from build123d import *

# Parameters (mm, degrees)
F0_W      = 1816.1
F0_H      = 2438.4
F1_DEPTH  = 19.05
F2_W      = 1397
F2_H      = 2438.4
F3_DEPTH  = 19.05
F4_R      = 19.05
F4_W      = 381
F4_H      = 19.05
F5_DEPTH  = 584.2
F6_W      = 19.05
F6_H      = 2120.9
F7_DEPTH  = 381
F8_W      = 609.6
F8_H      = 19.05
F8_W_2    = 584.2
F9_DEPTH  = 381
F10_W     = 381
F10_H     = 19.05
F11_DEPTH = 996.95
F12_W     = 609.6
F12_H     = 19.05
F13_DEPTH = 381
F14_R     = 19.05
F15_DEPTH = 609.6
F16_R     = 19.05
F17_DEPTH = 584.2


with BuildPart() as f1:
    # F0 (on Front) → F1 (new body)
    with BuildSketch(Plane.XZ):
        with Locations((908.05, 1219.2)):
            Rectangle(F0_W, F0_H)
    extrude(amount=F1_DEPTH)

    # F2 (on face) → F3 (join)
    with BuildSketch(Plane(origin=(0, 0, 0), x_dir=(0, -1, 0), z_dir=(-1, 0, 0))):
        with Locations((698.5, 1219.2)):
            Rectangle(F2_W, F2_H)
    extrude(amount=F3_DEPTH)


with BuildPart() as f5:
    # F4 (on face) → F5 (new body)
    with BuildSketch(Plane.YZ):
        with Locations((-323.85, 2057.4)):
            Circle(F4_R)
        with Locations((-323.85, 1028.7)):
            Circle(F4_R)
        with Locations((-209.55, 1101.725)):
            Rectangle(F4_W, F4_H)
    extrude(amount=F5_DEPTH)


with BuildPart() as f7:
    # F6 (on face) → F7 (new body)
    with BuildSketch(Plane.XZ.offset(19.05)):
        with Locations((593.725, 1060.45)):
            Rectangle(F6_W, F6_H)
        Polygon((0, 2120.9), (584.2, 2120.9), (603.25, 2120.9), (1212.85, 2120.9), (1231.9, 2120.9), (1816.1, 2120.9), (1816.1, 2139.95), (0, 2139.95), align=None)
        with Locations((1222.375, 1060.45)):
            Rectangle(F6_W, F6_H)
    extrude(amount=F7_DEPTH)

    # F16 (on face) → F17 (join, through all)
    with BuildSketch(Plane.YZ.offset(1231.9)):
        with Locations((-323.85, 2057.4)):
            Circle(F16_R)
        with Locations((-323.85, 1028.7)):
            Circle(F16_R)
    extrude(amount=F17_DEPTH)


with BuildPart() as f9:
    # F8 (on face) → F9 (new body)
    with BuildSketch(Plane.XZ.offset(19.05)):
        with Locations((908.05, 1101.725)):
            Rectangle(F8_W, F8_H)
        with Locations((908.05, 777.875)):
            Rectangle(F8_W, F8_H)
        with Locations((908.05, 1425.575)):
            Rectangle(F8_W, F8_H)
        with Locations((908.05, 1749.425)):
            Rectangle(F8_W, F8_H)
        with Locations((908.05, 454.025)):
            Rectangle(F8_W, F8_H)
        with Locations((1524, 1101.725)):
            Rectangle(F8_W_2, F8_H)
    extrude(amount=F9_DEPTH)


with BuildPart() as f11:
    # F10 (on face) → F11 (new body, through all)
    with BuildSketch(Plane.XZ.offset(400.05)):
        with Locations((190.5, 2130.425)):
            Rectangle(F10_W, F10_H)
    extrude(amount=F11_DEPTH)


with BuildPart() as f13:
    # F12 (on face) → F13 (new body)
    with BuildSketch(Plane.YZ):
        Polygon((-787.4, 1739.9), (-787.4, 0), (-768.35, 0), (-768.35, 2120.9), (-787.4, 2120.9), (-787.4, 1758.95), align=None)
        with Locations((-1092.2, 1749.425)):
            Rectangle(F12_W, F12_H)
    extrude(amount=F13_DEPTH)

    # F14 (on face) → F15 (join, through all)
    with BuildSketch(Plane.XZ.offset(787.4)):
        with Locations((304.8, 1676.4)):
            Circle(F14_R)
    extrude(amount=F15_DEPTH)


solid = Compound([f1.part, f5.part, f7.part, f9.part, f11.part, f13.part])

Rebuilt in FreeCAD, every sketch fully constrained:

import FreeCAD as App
import Part
import Sketcher

V = App.Vector
Q = App.Units.Quantity

doc = App.newDocument("Part")
body = doc.addObject("PartDesign::Body", "Body")

sketch1 = body.newObject("Sketcher::SketchObject", "Sketch")
sketch1.AttachmentSupport = (doc.getObject("XZ_Plane"), [""])
sketch1.MapMode = "FlatFace"
sketch1.addGeometry(Part.LineSegment(V(0, 2438.4, 0), V(0, 0, 0)), False)
sketch1.addGeometry(Part.LineSegment(V(0, 0, 0), V(1816.1, 0, 0)), False)
sketch1.addGeometry(Part.LineSegment(V(1816.1, 0, 0), V(1816.1, 2438.4, 0)), False)
sketch1.addGeometry(Part.LineSegment(V(1816.1, 2438.4, 0), V(0, 2438.4, 0)), False)
sketch1.addConstraint(Sketcher.Constraint("Coincident", 0, 2, 1, 1))
sketch1.addConstraint(Sketcher.Constraint("Coincident", 1, 2, 2, 1))
sketch1.addConstraint(Sketcher.Constraint("Coincident", 2, 2, 3, 1))
sketch1.addConstraint(Sketcher.Constraint("Coincident", 3, 2, 0, 1))
sketch1.addConstraint(Sketcher.Constraint("Vertical", 0))
sketch1.addConstraint(Sketcher.Constraint("Horizontal", 1))
sketch1.addConstraint(Sketcher.Constraint("Vertical", 2))
sketch1.addConstraint(Sketcher.Constraint("Horizontal", 3))
sketch1.addConstraint(Sketcher.Constraint("Coincident", 0, 2, -1, 1))
sketch1.addConstraint(Sketcher.Constraint("DistanceY", 0, 2, 0, 1, Q("96 in")))
sketch1.addConstraint(Sketcher.Constraint("DistanceX", 1, 1, 1, 2, Q("71.5 in")))
pad1 = body.newObject("PartDesign::Pad", "Pad")
pad1.Profile = sketch1
pad1.Length = Q("0.75 in")

sketch2 = body.newObject("Sketcher::SketchObject", "Sketch001")
sketch2.AttachmentSupport = (doc.getObject("YZ_Plane"), [""])
sketch2.MapMode = "FlatFace"
sketch2.addGeometry(Part.LineSegment(V(0, 2438.4, 0), V(0, 0, 0)), False)
sketch2.addGeometry(Part.LineSegment(V(0, 0, 0), V(-1397, 0, 0)), False)
sketch2.addGeometry(Part.LineSegment(V(-1397, 0, 0), V(-1397, 2438.4, 0)), False)
sketch2.addGeometry(Part.LineSegment(V(-1397, 2438.4, 0), V(0, 2438.4, 0)), False)
sketch2.addConstraint(Sketcher.Constraint("Coincident", 0, 2, 1, 1))
sketch2.addConstraint(Sketcher.Constraint("Coincident", 1, 2, 2, 1))
sketch2.addConstraint(Sketcher.Constraint("Coincident", 2, 2, 3, 1))
sketch2.addConstraint(Sketcher.Constraint("Coincident", 3, 2, 0, 1))
sketch2.addConstraint(Sketcher.Constraint("Vertical", 0))
sketch2.addConstraint(Sketcher.Constraint("Horizontal", 1))
sketch2.addConstraint(Sketcher.Constraint("Vertical", 2))
sketch2.addConstraint(Sketcher.Constraint("Horizontal", 3))
sketch2.addConstraint(Sketcher.Constraint("Coincident", 0, 2, -1, 1))
sketch2.addConstraint(Sketcher.Constraint("DistanceX", 1, 2, 1, 1, Q("55 in")))
sketch2.addConstraint(Sketcher.Constraint("DistanceY", 0, 2, 0, 1, Q("96 in")))
pad2 = body.newObject("PartDesign::Pad", "Pad001")
pad2.Profile = sketch2
pad2.Length = Q("0.75 in")
pad2.Reversed = True
body2 = doc.addObject("PartDesign::Body", "Body001")
body2.AllowCompound = True

sketch3 = body2.newObject("Sketcher::SketchObject", "Sketch002")
sketch3.AttachmentSupport = (doc.getObject("YZ_Plane001"), [""])
sketch3.MapMode = "FlatFace"
sketch3.addGeometry(Part.Circle(V(-323.85, 2057.4, 0), V(0, 0, 1), 19.05), False)
sketch3.addGeometry(Part.Circle(V(-323.85, 1028.7, 0), V(0, 0, 1), 19.05), False)
sketch3.addGeometry(Part.LineSegment(V(-400.05, 1111.25, 0), V(-400.05, 1092.2, 0)), False)
sketch3.addGeometry(Part.LineSegment(V(-400.05, 1092.2, 0), V(-19.05, 1092.2, 0)), False)
sketch3.addGeometry(Part.LineSegment(V(-19.05, 1092.2, 0), V(-19.05, 1111.25, 0)), False)
sketch3.addGeometry(Part.LineSegment(V(-19.05, 1111.25, 0), V(-400.05, 1111.25, 0)), False)
sketch3.addConstraint(Sketcher.Constraint("Coincident", 2, 2, 3, 1))
sketch3.addConstraint(Sketcher.Constraint("Coincident", 3, 2, 4, 1))
sketch3.addConstraint(Sketcher.Constraint("Coincident", 4, 2, 5, 1))
sketch3.addConstraint(Sketcher.Constraint("Coincident", 5, 2, 2, 1))
sketch3.addConstraint(Sketcher.Constraint("Vertical", 2))
sketch3.addConstraint(Sketcher.Constraint("Horizontal", 3))
sketch3.addConstraint(Sketcher.Constraint("Vertical", 4))
sketch3.addConstraint(Sketcher.Constraint("Horizontal", 5))
sketch3.addConstraint(Sketcher.Constraint("Equal", 0, 1))
sketch3.addConstraint(Sketcher.Constraint("Vertical", 0, 3, 1, 3))
sketch3.addConstraint(Sketcher.Constraint("Diameter", 0, Q("1.5 in")))
sketch3.addConstraint(Sketcher.Constraint("DistanceX", 3, 1, 3, 2, Q("15 in")))
sketch3.addConstraint(Sketcher.Constraint("DistanceY", -1, 1, 0, 3, Q("81 in")))
sketch3.addConstraint(Sketcher.Constraint("DistanceY", -1, 1, 2, 2, Q("43 in")))
sketch3.addConstraint(Sketcher.Constraint("DistanceX", 2, 2, 1, 3, Q("3 in")))
sketch3.addConstraint(Sketcher.Constraint("DistanceY", 2, 2, 2, 1, Q("0.75 in")))
sketch3.addConstraint(Sketcher.Constraint("DistanceY", -1, 1, 1, 3, Q("40.5 in")))
sketch3.addConstraint(Sketcher.Constraint("DistanceX", 0, 3, -1, 1, Q("12.75 in")))
pad3 = body2.newObject("PartDesign::Pad", "Pad002")
pad3.Profile = sketch3
pad3.Length = Q("23 in")
body3 = doc.addObject("PartDesign::Body", "Body002")

sketch4 = body3.newObject("Sketcher::SketchObject", "Sketch003")
sketch4.AttachmentSupport = (doc.getObject("XZ_Plane002"), [""])
sketch4.MapMode = "FlatFace"
sketch4.AttachmentOffset = App.Placement(V(0, 0, 0.75 * 25.4), App.Rotation())
sketch4.addGeometry(Part.LineSegment(V(584.2, 2120.9, 0), V(584.2, 0, 0)), False)
sketch4.addGeometry(Part.LineSegment(V(584.2, 0, 0), V(603.25, 0, 0)), False)
sketch4.addGeometry(Part.LineSegment(V(603.25, 0, 0), V(603.25, 2120.9, 0)), False)
sketch4.addGeometry(Part.LineSegment(V(603.25, 2120.9, 0), V(1212.85, 2120.9, 0)), False)
sketch4.addGeometry(Part.LineSegment(V(1212.85, 2120.9, 0), V(1212.85, 0, 0)), False)
sketch4.addGeometry(Part.LineSegment(V(1212.85, 0, 0), V(1231.9, 0, 0)), False)
sketch4.addGeometry(Part.LineSegment(V(1231.9, 0, 0), V(1231.9, 2120.9, 0)), False)
sketch4.addGeometry(Part.LineSegment(V(1231.9, 2120.9, 0), V(1816.1, 2120.9, 0)), False)
sketch4.addGeometry(Part.LineSegment(V(1816.1, 2120.9, 0), V(1816.1, 2139.95, 0)), False)
sketch4.addGeometry(Part.LineSegment(V(1816.1, 2139.95, 0), V(0, 2139.95, 0)), False)
sketch4.addGeometry(Part.LineSegment(V(0, 2139.95, 0), V(0, 2120.9, 0)), False)
sketch4.addGeometry(Part.LineSegment(V(0, 2120.9, 0), V(584.2, 2120.9, 0)), False)
sketch4.addConstraint(Sketcher.Constraint("Coincident", 0, 2, 1, 1))
sketch4.addConstraint(Sketcher.Constraint("Coincident", 1, 2, 2, 1))
sketch4.addConstraint(Sketcher.Constraint("Coincident", 2, 2, 3, 1))
sketch4.addConstraint(Sketcher.Constraint("Coincident", 3, 2, 4, 1))
sketch4.addConstraint(Sketcher.Constraint("Coincident", 4, 2, 5, 1))
sketch4.addConstraint(Sketcher.Constraint("Coincident", 5, 2, 6, 1))
sketch4.addConstraint(Sketcher.Constraint("Coincident", 6, 2, 7, 1))
sketch4.addConstraint(Sketcher.Constraint("Coincident", 7, 2, 8, 1))
sketch4.addConstraint(Sketcher.Constraint("Coincident", 8, 2, 9, 1))
sketch4.addConstraint(Sketcher.Constraint("Coincident", 9, 2, 10, 1))
sketch4.addConstraint(Sketcher.Constraint("Coincident", 10, 2, 11, 1))
sketch4.addConstraint(Sketcher.Constraint("Coincident", 11, 2, 0, 1))
sketch4.addConstraint(Sketcher.Constraint("Vertical", 0))
sketch4.addConstraint(Sketcher.Constraint("Horizontal", 1))
sketch4.addConstraint(Sketcher.Constraint("Vertical", 2))
sketch4.addConstraint(Sketcher.Constraint("Horizontal", 3))
sketch4.addConstraint(Sketcher.Constraint("Vertical", 4))
sketch4.addConstraint(Sketcher.Constraint("Horizontal", 5))
sketch4.addConstraint(Sketcher.Constraint("Vertical", 6))
sketch4.addConstraint(Sketcher.Constraint("Horizontal", 7))
sketch4.addConstraint(Sketcher.Constraint("Vertical", 8))
sketch4.addConstraint(Sketcher.Constraint("Horizontal", 9))
sketch4.addConstraint(Sketcher.Constraint("Vertical", 10))
sketch4.addConstraint(Sketcher.Constraint("Horizontal", 11))
sketch4.addConstraint(Sketcher.Constraint("PointOnObject", 0, 2, -1))
sketch4.addConstraint(Sketcher.Constraint("PointOnObject", 4, 2, -1))
sketch4.addConstraint(Sketcher.Constraint("PointOnObject", 9, 2, -2))
sketch4.addConstraint(Sketcher.Constraint("Horizontal", 3, 2, 6, 2))
sketch4.addConstraint(Sketcher.Constraint("Horizontal", 7, 2, 10, 2))
sketch4.addConstraint(Sketcher.Constraint("Equal", 1, 5))
sketch4.addConstraint(Sketcher.Constraint("Equal", 7, 11))
sketch4.addConstraint(Sketcher.Constraint("Equal", 5, 8))
sketch4.addConstraint(Sketcher.Constraint("DistanceX", 3, 1, 3, 2, Q("24 in")))
sketch4.addConstraint(Sketcher.Constraint("DistanceX", 7, 1, 7, 2, Q("23 in")))
sketch4.addConstraint(Sketcher.Constraint("DistanceX", 9, 2, 9, 1, Q("71.5 in")))
sketch4.addConstraint(Sketcher.Constraint("DistanceY", 0, 2, 0, 1, Q("83.5 in")))
pad4 = body3.newObject("PartDesign::Pad", "Pad003")
pad4.Profile = sketch4
pad4.Length = Q("15 in")

sketch5 = body3.newObject("Sketcher::SketchObject", "Sketch004")
sketch5.AttachmentSupport = (doc.getObject("YZ_Plane002"), [""])
sketch5.MapMode = "FlatFace"
sketch5.AttachmentOffset = App.Placement(V(0, 0, 48.5 * 25.4), App.Rotation())
sketch5.addGeometry(Part.Circle(V(-323.85, 2057.4, 0), V(0, 0, 1), 19.05), False)
sketch5.addGeometry(Part.Circle(V(-323.85, 1028.7, 0), V(0, 0, 1), 19.05), False)
sketch5.addConstraint(Sketcher.Constraint("Equal", 0, 1))
sketch5.addConstraint(Sketcher.Constraint("Vertical", 0, 3, 1, 3))
sketch5.addConstraint(Sketcher.Constraint("Diameter", 0, Q("1.5 in")))
sketch5.addConstraint(Sketcher.Constraint("DistanceY", -1, 1, 0, 3, Q("81 in")))
sketch5.addConstraint(Sketcher.Constraint("DistanceY", -1, 1, 1, 3, Q("40.5 in")))
sketch5.addConstraint(Sketcher.Constraint("DistanceX", 0, 3, -1, 1, Q("12.75 in")))
pad5 = body3.newObject("PartDesign::Pad", "Pad004")
pad5.Profile = sketch5
pad5.Length = Q("23 in")
body4 = doc.addObject("PartDesign::Body", "Body003")
body4.AllowCompound = True

sketch6 = body4.newObject("Sketcher::SketchObject", "Sketch005")
sketch6.AttachmentSupport = (doc.getObject("XZ_Plane003"), [""])
sketch6.MapMode = "FlatFace"
sketch6.AttachmentOffset = App.Placement(V(0, 0, 0.75 * 25.4), App.Rotation())
sketch6.addGeometry(Part.LineSegment(V(603.25, 1111.25, 0), V(603.25, 1092.2, 0)), False)
sketch6.addGeometry(Part.LineSegment(V(603.25, 1092.2, 0), V(1212.85, 1092.2, 0)), False)
sketch6.addGeometry(Part.LineSegment(V(1212.85, 1092.2, 0), V(1212.85, 1111.25, 0)), False)
sketch6.addGeometry(Part.LineSegment(V(1212.85, 1111.25, 0), V(603.25, 1111.25, 0)), False)
sketch6.addGeometry(Part.LineSegment(V(603.25, 787.4, 0), V(603.25, 768.35, 0)), False)
sketch6.addGeometry(Part.LineSegment(V(603.25, 768.35, 0), V(1212.85, 768.35, 0)), False)
sketch6.addGeometry(Part.LineSegment(V(1212.85, 768.35, 0), V(1212.85, 787.4, 0)), False)
sketch6.addGeometry(Part.LineSegment(V(1212.85, 787.4, 0), V(603.25, 787.4, 0)), False)
sketch6.addGeometry(Part.LineSegment(V(603.25, 1435.1, 0), V(603.25, 1416.05, 0)), False)
sketch6.addGeometry(Part.LineSegment(V(603.25, 1416.05, 0), V(1212.85, 1416.05, 0)), False)
sketch6.addGeometry(Part.LineSegment(V(1212.85, 1416.05, 0), V(1212.85, 1435.1, 0)), False)
sketch6.addGeometry(Part.LineSegment(V(1212.85, 1435.1, 0), V(603.25, 1435.1, 0)), False)
sketch6.addGeometry(Part.LineSegment(V(603.25, 1758.95, 0), V(603.25, 1739.9, 0)), False)
sketch6.addGeometry(Part.LineSegment(V(603.25, 1739.9, 0), V(1212.85, 1739.9, 0)), False)
sketch6.addGeometry(Part.LineSegment(V(1212.85, 1739.9, 0), V(1212.85, 1758.95, 0)), False)
sketch6.addGeometry(Part.LineSegment(V(1212.85, 1758.95, 0), V(603.25, 1758.95, 0)), False)
sketch6.addGeometry(Part.LineSegment(V(603.25, 463.55, 0), V(603.25, 444.5, 0)), False)
sketch6.addGeometry(Part.LineSegment(V(603.25, 444.5, 0), V(1212.85, 444.5, 0)), False)
sketch6.addGeometry(Part.LineSegment(V(1212.85, 444.5, 0), V(1212.85, 463.55, 0)), False)
sketch6.addGeometry(Part.LineSegment(V(1212.85, 463.55, 0), V(603.25, 463.55, 0)), False)
sketch6.addGeometry(Part.LineSegment(V(1231.9, 1111.25, 0), V(1231.9, 1092.2, 0)), False)
sketch6.addGeometry(Part.LineSegment(V(1231.9, 1092.2, 0), V(1816.1, 1092.2, 0)), False)
sketch6.addGeometry(Part.LineSegment(V(1816.1, 1092.2, 0), V(1816.1, 1111.25, 0)), False)
sketch6.addGeometry(Part.LineSegment(V(1816.1, 1111.25, 0), V(1231.9, 1111.25, 0)), False)
sketch6.addConstraint(Sketcher.Constraint("Coincident", 0, 2, 1, 1))
sketch6.addConstraint(Sketcher.Constraint("Coincident", 1, 2, 2, 1))
sketch6.addConstraint(Sketcher.Constraint("Coincident", 2, 2, 3, 1))
sketch6.addConstraint(Sketcher.Constraint("Coincident", 3, 2, 0, 1))
sketch6.addConstraint(Sketcher.Constraint("Coincident", 4, 2, 5, 1))
sketch6.addConstraint(Sketcher.Constraint("Coincident", 5, 2, 6, 1))
sketch6.addConstraint(Sketcher.Constraint("Coincident", 6, 2, 7, 1))
sketch6.addConstraint(Sketcher.Constraint("Coincident", 7, 2, 4, 1))
sketch6.addConstraint(Sketcher.Constraint("Coincident", 8, 2, 9, 1))
sketch6.addConstraint(Sketcher.Constraint("Coincident", 9, 2, 10, 1))
sketch6.addConstraint(Sketcher.Constraint("Coincident", 10, 2, 11, 1))
sketch6.addConstraint(Sketcher.Constraint("Coincident", 11, 2, 8, 1))
sketch6.addConstraint(Sketcher.Constraint("Coincident", 12, 2, 13, 1))
sketch6.addConstraint(Sketcher.Constraint("Coincident", 13, 2, 14, 1))
sketch6.addConstraint(Sketcher.Constraint("Coincident", 14, 2, 15, 1))
sketch6.addConstraint(Sketcher.Constraint("Coincident", 15, 2, 12, 1))
sketch6.addConstraint(Sketcher.Constraint("Coincident", 16, 2, 17, 1))
sketch6.addConstraint(Sketcher.Constraint("Coincident", 17, 2, 18, 1))
sketch6.addConstraint(Sketcher.Constraint("Coincident", 18, 2, 19, 1))
sketch6.addConstraint(Sketcher.Constraint("Coincident", 19, 2, 16, 1))
sketch6.addConstraint(Sketcher.Constraint("Coincident", 20, 2, 21, 1))
sketch6.addConstraint(Sketcher.Constraint("Coincident", 21, 2, 22, 1))
sketch6.addConstraint(Sketcher.Constraint("Coincident", 22, 2, 23, 1))
sketch6.addConstraint(Sketcher.Constraint("Coincident", 23, 2, 20, 1))
sketch6.addConstraint(Sketcher.Constraint("Vertical", 0))
sketch6.addConstraint(Sketcher.Constraint("Horizontal", 1))
sketch6.addConstraint(Sketcher.Constraint("Vertical", 2))
sketch6.addConstraint(Sketcher.Constraint("Horizontal", 3))
sketch6.addConstraint(Sketcher.Constraint("Vertical", 4))
sketch6.addConstraint(Sketcher.Constraint("Horizontal", 5))
sketch6.addConstraint(Sketcher.Constraint("Vertical", 6))
sketch6.addConstraint(Sketcher.Constraint("Horizontal", 7))
sketch6.addConstraint(Sketcher.Constraint("Vertical", 8))
sketch6.addConstraint(Sketcher.Constraint("Horizontal", 9))
sketch6.addConstraint(Sketcher.Constraint("Vertical", 10))
sketch6.addConstraint(Sketcher.Constraint("Horizontal", 11))
sketch6.addConstraint(Sketcher.Constraint("Vertical", 12))
sketch6.addConstraint(Sketcher.Constraint("Horizontal", 13))
sketch6.addConstraint(Sketcher.Constraint("Vertical", 14))
sketch6.addConstraint(Sketcher.Constraint("Horizontal", 15))
sketch6.addConstraint(Sketcher.Constraint("Vertical", 16))
sketch6.addConstraint(Sketcher.Constraint("Horizontal", 17))
sketch6.addConstraint(Sketcher.Constraint("Vertical", 18))
sketch6.addConstraint(Sketcher.Constraint("Horizontal", 19))
sketch6.addConstraint(Sketcher.Constraint("Vertical", 20))
sketch6.addConstraint(Sketcher.Constraint("Horizontal", 21))
sketch6.addConstraint(Sketcher.Constraint("Vertical", 22))
sketch6.addConstraint(Sketcher.Constraint("Horizontal", 23))
sketch6.addConstraint(Sketcher.Constraint("Horizontal", 1, 2, 20, 2))
sketch6.addConstraint(Sketcher.Constraint("Horizontal", 3, 2, 22, 2))
sketch6.addConstraint(Sketcher.Constraint("Vertical", 3, 2, 4, 2))
sketch6.addConstraint(Sketcher.Constraint("Vertical", 2, 2, 5, 2))
sketch6.addConstraint(Sketcher.Constraint("Vertical", 7, 2, 8, 2))
sketch6.addConstraint(Sketcher.Constraint("Vertical", 6, 2, 9, 2))
sketch6.addConstraint(Sketcher.Constraint("Vertical", 11, 2, 12, 2))
sketch6.addConstraint(Sketcher.Constraint("Vertical", 10, 2, 13, 2))
sketch6.addConstraint(Sketcher.Constraint("Vertical", 15, 2, 16, 2))
sketch6.addConstraint(Sketcher.Constraint("Vertical", 14, 2, 17, 2))
sketch6.addConstraint(Sketcher.Constraint("Equal", 2, 4))
sketch6.addConstraint(Sketcher.Constraint("Equal", 6, 8))
sketch6.addConstraint(Sketcher.Constraint("Equal", 10, 12))
sketch6.addConstraint(Sketcher.Constraint("Equal", 14, 16))
sketch6.addConstraint(Sketcher.Constraint("DistanceX", 1, 1, 1, 2, Q("24 in")))
sketch6.addConstraint(Sketcher.Constraint("DistanceX", 21, 1, 21, 2, Q("23 in")))
sketch6.addConstraint(Sketcher.Constraint("DistanceY", -1, 1, 0, 2, Q("43 in")))
sketch6.addConstraint(Sketcher.Constraint("DistanceY", -1, 1, 6, 2, Q("31 in")))
sketch6.addConstraint(Sketcher.Constraint("DistanceY", 3, 2, 8, 2, Q("12 in")))
sketch6.addConstraint(Sketcher.Constraint("DistanceY", 11, 2, 12, 2, Q("12 in")))
sketch6.addConstraint(Sketcher.Constraint("DistanceY", 18, 2, 5, 2, Q("12 in")))
sketch6.addConstraint(Sketcher.Constraint("DistanceY", 0, 2, 0, 1, Q("0.75 in")))
sketch6.addConstraint(Sketcher.Constraint("DistanceX", -1, 1, 20, 2, Q("48.5 in")))
sketch6.addConstraint(Sketcher.Constraint("DistanceX", -1, 1, 0, 2, Q("23.75 in")))
pad6 = body4.newObject("PartDesign::Pad", "Pad005")
pad6.Profile = sketch6
pad6.Length = Q("15 in")
body5 = doc.addObject("PartDesign::Body", "Body004")

sketch7 = body5.newObject("Sketcher::SketchObject", "Sketch006")
sketch7.AttachmentSupport = (doc.getObject("XZ_Plane004"), [""])
sketch7.MapMode = "FlatFace"
sketch7.AttachmentOffset = App.Placement(V(0, 0, 15.75 * 25.4), App.Rotation())
sketch7.addGeometry(Part.LineSegment(V(0, 2139.95, 0), V(0, 2120.9, 0)), False)
sketch7.addGeometry(Part.LineSegment(V(0, 2120.9, 0), V(381, 2120.9, 0)), False)
sketch7.addGeometry(Part.LineSegment(V(381, 2120.9, 0), V(381, 2139.95, 0)), False)
sketch7.addGeometry(Part.LineSegment(V(381, 2139.95, 0), V(0, 2139.95, 0)), False)
sketch7.addConstraint(Sketcher.Constraint("Coincident", 0, 2, 1, 1))
sketch7.addConstraint(Sketcher.Constraint("Coincident", 1, 2, 2, 1))
sketch7.addConstraint(Sketcher.Constraint("Coincident", 2, 2, 3, 1))
sketch7.addConstraint(Sketcher.Constraint("Coincident", 3, 2, 0, 1))
sketch7.addConstraint(Sketcher.Constraint("Vertical", 0))
sketch7.addConstraint(Sketcher.Constraint("Horizontal", 1))
sketch7.addConstraint(Sketcher.Constraint("Vertical", 2))
sketch7.addConstraint(Sketcher.Constraint("Horizontal", 3))
sketch7.addConstraint(Sketcher.Constraint("PointOnObject", 0, 2, -2))
sketch7.addConstraint(Sketcher.Constraint("DistanceX", 1, 1, 1, 2, Q("15 in")))
sketch7.addConstraint(Sketcher.Constraint("DistanceY", 0, 2, 0, 1, Q("0.75 in")))
sketch7.addConstraint(Sketcher.Constraint("DistanceY", -1, 1, 0, 2, Q("83.5 in")))
pad7 = body5.newObject("PartDesign::Pad", "Pad006")
pad7.Profile = sketch7
pad7.Length = Q("39.25 in")
body6 = doc.addObject("PartDesign::Body", "Body005")

sketch8 = body6.newObject("Sketcher::SketchObject", "Sketch007")
sketch8.AttachmentSupport = (doc.getObject("YZ_Plane005"), [""])
sketch8.MapMode = "FlatFace"
sketch8.addGeometry(Part.LineSegment(V(-787.4, 0, 0), V(-768.35, 0, 0)), False)
sketch8.addGeometry(Part.LineSegment(V(-768.35, 0, 0), V(-768.35, 2120.9, 0)), False)
sketch8.addGeometry(Part.LineSegment(V(-768.35, 2120.9, 0), V(-787.4, 2120.9, 0)), False)
sketch8.addGeometry(Part.LineSegment(V(-787.4, 2120.9, 0), V(-787.4, 1758.95, 0)), False)
sketch8.addGeometry(Part.LineSegment(V(-787.4, 1758.95, 0), V(-1397, 1758.95, 0)), False)
sketch8.addGeometry(Part.LineSegment(V(-1397, 1758.95, 0), V(-1397, 1739.9, 0)), False)
sketch8.addGeometry(Part.LineSegment(V(-1397, 1739.9, 0), V(-787.4, 1739.9, 0)), False)
sketch8.addGeometry(Part.LineSegment(V(-787.4, 1739.9, 0), V(-787.4, 0, 0)), False)
sketch8.addConstraint(Sketcher.Constraint("Coincident", 0, 2, 1, 1))
sketch8.addConstraint(Sketcher.Constraint("Coincident", 1, 2, 2, 1))
sketch8.addConstraint(Sketcher.Constraint("Coincident", 2, 2, 3, 1))
sketch8.addConstraint(Sketcher.Constraint("Coincident", 3, 2, 4, 1))
sketch8.addConstraint(Sketcher.Constraint("Coincident", 4, 2, 5, 1))
sketch8.addConstraint(Sketcher.Constraint("Coincident", 5, 2, 6, 1))
sketch8.addConstraint(Sketcher.Constraint("Coincident", 6, 2, 7, 1))
sketch8.addConstraint(Sketcher.Constraint("Coincident", 7, 2, 0, 1))
sketch8.addConstraint(Sketcher.Constraint("Horizontal", 0))
sketch8.addConstraint(Sketcher.Constraint("Vertical", 1))
sketch8.addConstraint(Sketcher.Constraint("Horizontal", 2))
sketch8.addConstraint(Sketcher.Constraint("Vertical", 3))
sketch8.addConstraint(Sketcher.Constraint("Horizontal", 4))
sketch8.addConstraint(Sketcher.Constraint("Vertical", 5))
sketch8.addConstraint(Sketcher.Constraint("Horizontal", 6))
sketch8.addConstraint(Sketcher.Constraint("Vertical", 7))
sketch8.addConstraint(Sketcher.Constraint("PointOnObject", 0, 2, -1))
sketch8.addConstraint(Sketcher.Constraint("Vertical", 3, 2, 6, 2))
sketch8.addConstraint(Sketcher.Constraint("Equal", 2, 5))
sketch8.addConstraint(Sketcher.Constraint("DistanceX", 4, 2, 4, 1, Q("24 in")))
sketch8.addConstraint(Sketcher.Constraint("DistanceY", 1, 1, 1, 2, Q("83.5 in")))
sketch8.addConstraint(Sketcher.Constraint("DistanceY", 7, 2, 7, 1, Q("68.5 in")))
sketch8.addConstraint(Sketcher.Constraint("DistanceX", 2, 2, -1, 1, Q("31 in")))
sketch8.addConstraint(Sketcher.Constraint("DistanceX", 0, 1, 0, 2, Q("0.75 in")))
pad8 = body6.newObject("PartDesign::Pad", "Pad007")
pad8.Profile = sketch8
pad8.Length = Q("15 in")

sketch9 = body6.newObject("Sketcher::SketchObject", "Sketch008")
sketch9.AttachmentSupport = (doc.getObject("XZ_Plane005"), [""])
sketch9.MapMode = "FlatFace"
sketch9.AttachmentOffset = App.Placement(V(0, 0, 31 * 25.4), App.Rotation())
sketch9.addGeometry(Part.Circle(V(304.8, 1676.4, 0), V(0, 0, 1), 19.05), False)
sketch9.addConstraint(Sketcher.Constraint("Diameter", 0, Q("1.5 in")))
sketch9.addConstraint(Sketcher.Constraint("DistanceX", -1, 1, 0, 3, Q("12 in")))
sketch9.addConstraint(Sketcher.Constraint("DistanceY", -1, 1, 0, 3, Q("66 in")))
pad9 = body6.newObject("PartDesign::Pad", "Pad008")
pad9.Profile = sketch9
pad9.Length = Q("24 in")

doc.recompute()
